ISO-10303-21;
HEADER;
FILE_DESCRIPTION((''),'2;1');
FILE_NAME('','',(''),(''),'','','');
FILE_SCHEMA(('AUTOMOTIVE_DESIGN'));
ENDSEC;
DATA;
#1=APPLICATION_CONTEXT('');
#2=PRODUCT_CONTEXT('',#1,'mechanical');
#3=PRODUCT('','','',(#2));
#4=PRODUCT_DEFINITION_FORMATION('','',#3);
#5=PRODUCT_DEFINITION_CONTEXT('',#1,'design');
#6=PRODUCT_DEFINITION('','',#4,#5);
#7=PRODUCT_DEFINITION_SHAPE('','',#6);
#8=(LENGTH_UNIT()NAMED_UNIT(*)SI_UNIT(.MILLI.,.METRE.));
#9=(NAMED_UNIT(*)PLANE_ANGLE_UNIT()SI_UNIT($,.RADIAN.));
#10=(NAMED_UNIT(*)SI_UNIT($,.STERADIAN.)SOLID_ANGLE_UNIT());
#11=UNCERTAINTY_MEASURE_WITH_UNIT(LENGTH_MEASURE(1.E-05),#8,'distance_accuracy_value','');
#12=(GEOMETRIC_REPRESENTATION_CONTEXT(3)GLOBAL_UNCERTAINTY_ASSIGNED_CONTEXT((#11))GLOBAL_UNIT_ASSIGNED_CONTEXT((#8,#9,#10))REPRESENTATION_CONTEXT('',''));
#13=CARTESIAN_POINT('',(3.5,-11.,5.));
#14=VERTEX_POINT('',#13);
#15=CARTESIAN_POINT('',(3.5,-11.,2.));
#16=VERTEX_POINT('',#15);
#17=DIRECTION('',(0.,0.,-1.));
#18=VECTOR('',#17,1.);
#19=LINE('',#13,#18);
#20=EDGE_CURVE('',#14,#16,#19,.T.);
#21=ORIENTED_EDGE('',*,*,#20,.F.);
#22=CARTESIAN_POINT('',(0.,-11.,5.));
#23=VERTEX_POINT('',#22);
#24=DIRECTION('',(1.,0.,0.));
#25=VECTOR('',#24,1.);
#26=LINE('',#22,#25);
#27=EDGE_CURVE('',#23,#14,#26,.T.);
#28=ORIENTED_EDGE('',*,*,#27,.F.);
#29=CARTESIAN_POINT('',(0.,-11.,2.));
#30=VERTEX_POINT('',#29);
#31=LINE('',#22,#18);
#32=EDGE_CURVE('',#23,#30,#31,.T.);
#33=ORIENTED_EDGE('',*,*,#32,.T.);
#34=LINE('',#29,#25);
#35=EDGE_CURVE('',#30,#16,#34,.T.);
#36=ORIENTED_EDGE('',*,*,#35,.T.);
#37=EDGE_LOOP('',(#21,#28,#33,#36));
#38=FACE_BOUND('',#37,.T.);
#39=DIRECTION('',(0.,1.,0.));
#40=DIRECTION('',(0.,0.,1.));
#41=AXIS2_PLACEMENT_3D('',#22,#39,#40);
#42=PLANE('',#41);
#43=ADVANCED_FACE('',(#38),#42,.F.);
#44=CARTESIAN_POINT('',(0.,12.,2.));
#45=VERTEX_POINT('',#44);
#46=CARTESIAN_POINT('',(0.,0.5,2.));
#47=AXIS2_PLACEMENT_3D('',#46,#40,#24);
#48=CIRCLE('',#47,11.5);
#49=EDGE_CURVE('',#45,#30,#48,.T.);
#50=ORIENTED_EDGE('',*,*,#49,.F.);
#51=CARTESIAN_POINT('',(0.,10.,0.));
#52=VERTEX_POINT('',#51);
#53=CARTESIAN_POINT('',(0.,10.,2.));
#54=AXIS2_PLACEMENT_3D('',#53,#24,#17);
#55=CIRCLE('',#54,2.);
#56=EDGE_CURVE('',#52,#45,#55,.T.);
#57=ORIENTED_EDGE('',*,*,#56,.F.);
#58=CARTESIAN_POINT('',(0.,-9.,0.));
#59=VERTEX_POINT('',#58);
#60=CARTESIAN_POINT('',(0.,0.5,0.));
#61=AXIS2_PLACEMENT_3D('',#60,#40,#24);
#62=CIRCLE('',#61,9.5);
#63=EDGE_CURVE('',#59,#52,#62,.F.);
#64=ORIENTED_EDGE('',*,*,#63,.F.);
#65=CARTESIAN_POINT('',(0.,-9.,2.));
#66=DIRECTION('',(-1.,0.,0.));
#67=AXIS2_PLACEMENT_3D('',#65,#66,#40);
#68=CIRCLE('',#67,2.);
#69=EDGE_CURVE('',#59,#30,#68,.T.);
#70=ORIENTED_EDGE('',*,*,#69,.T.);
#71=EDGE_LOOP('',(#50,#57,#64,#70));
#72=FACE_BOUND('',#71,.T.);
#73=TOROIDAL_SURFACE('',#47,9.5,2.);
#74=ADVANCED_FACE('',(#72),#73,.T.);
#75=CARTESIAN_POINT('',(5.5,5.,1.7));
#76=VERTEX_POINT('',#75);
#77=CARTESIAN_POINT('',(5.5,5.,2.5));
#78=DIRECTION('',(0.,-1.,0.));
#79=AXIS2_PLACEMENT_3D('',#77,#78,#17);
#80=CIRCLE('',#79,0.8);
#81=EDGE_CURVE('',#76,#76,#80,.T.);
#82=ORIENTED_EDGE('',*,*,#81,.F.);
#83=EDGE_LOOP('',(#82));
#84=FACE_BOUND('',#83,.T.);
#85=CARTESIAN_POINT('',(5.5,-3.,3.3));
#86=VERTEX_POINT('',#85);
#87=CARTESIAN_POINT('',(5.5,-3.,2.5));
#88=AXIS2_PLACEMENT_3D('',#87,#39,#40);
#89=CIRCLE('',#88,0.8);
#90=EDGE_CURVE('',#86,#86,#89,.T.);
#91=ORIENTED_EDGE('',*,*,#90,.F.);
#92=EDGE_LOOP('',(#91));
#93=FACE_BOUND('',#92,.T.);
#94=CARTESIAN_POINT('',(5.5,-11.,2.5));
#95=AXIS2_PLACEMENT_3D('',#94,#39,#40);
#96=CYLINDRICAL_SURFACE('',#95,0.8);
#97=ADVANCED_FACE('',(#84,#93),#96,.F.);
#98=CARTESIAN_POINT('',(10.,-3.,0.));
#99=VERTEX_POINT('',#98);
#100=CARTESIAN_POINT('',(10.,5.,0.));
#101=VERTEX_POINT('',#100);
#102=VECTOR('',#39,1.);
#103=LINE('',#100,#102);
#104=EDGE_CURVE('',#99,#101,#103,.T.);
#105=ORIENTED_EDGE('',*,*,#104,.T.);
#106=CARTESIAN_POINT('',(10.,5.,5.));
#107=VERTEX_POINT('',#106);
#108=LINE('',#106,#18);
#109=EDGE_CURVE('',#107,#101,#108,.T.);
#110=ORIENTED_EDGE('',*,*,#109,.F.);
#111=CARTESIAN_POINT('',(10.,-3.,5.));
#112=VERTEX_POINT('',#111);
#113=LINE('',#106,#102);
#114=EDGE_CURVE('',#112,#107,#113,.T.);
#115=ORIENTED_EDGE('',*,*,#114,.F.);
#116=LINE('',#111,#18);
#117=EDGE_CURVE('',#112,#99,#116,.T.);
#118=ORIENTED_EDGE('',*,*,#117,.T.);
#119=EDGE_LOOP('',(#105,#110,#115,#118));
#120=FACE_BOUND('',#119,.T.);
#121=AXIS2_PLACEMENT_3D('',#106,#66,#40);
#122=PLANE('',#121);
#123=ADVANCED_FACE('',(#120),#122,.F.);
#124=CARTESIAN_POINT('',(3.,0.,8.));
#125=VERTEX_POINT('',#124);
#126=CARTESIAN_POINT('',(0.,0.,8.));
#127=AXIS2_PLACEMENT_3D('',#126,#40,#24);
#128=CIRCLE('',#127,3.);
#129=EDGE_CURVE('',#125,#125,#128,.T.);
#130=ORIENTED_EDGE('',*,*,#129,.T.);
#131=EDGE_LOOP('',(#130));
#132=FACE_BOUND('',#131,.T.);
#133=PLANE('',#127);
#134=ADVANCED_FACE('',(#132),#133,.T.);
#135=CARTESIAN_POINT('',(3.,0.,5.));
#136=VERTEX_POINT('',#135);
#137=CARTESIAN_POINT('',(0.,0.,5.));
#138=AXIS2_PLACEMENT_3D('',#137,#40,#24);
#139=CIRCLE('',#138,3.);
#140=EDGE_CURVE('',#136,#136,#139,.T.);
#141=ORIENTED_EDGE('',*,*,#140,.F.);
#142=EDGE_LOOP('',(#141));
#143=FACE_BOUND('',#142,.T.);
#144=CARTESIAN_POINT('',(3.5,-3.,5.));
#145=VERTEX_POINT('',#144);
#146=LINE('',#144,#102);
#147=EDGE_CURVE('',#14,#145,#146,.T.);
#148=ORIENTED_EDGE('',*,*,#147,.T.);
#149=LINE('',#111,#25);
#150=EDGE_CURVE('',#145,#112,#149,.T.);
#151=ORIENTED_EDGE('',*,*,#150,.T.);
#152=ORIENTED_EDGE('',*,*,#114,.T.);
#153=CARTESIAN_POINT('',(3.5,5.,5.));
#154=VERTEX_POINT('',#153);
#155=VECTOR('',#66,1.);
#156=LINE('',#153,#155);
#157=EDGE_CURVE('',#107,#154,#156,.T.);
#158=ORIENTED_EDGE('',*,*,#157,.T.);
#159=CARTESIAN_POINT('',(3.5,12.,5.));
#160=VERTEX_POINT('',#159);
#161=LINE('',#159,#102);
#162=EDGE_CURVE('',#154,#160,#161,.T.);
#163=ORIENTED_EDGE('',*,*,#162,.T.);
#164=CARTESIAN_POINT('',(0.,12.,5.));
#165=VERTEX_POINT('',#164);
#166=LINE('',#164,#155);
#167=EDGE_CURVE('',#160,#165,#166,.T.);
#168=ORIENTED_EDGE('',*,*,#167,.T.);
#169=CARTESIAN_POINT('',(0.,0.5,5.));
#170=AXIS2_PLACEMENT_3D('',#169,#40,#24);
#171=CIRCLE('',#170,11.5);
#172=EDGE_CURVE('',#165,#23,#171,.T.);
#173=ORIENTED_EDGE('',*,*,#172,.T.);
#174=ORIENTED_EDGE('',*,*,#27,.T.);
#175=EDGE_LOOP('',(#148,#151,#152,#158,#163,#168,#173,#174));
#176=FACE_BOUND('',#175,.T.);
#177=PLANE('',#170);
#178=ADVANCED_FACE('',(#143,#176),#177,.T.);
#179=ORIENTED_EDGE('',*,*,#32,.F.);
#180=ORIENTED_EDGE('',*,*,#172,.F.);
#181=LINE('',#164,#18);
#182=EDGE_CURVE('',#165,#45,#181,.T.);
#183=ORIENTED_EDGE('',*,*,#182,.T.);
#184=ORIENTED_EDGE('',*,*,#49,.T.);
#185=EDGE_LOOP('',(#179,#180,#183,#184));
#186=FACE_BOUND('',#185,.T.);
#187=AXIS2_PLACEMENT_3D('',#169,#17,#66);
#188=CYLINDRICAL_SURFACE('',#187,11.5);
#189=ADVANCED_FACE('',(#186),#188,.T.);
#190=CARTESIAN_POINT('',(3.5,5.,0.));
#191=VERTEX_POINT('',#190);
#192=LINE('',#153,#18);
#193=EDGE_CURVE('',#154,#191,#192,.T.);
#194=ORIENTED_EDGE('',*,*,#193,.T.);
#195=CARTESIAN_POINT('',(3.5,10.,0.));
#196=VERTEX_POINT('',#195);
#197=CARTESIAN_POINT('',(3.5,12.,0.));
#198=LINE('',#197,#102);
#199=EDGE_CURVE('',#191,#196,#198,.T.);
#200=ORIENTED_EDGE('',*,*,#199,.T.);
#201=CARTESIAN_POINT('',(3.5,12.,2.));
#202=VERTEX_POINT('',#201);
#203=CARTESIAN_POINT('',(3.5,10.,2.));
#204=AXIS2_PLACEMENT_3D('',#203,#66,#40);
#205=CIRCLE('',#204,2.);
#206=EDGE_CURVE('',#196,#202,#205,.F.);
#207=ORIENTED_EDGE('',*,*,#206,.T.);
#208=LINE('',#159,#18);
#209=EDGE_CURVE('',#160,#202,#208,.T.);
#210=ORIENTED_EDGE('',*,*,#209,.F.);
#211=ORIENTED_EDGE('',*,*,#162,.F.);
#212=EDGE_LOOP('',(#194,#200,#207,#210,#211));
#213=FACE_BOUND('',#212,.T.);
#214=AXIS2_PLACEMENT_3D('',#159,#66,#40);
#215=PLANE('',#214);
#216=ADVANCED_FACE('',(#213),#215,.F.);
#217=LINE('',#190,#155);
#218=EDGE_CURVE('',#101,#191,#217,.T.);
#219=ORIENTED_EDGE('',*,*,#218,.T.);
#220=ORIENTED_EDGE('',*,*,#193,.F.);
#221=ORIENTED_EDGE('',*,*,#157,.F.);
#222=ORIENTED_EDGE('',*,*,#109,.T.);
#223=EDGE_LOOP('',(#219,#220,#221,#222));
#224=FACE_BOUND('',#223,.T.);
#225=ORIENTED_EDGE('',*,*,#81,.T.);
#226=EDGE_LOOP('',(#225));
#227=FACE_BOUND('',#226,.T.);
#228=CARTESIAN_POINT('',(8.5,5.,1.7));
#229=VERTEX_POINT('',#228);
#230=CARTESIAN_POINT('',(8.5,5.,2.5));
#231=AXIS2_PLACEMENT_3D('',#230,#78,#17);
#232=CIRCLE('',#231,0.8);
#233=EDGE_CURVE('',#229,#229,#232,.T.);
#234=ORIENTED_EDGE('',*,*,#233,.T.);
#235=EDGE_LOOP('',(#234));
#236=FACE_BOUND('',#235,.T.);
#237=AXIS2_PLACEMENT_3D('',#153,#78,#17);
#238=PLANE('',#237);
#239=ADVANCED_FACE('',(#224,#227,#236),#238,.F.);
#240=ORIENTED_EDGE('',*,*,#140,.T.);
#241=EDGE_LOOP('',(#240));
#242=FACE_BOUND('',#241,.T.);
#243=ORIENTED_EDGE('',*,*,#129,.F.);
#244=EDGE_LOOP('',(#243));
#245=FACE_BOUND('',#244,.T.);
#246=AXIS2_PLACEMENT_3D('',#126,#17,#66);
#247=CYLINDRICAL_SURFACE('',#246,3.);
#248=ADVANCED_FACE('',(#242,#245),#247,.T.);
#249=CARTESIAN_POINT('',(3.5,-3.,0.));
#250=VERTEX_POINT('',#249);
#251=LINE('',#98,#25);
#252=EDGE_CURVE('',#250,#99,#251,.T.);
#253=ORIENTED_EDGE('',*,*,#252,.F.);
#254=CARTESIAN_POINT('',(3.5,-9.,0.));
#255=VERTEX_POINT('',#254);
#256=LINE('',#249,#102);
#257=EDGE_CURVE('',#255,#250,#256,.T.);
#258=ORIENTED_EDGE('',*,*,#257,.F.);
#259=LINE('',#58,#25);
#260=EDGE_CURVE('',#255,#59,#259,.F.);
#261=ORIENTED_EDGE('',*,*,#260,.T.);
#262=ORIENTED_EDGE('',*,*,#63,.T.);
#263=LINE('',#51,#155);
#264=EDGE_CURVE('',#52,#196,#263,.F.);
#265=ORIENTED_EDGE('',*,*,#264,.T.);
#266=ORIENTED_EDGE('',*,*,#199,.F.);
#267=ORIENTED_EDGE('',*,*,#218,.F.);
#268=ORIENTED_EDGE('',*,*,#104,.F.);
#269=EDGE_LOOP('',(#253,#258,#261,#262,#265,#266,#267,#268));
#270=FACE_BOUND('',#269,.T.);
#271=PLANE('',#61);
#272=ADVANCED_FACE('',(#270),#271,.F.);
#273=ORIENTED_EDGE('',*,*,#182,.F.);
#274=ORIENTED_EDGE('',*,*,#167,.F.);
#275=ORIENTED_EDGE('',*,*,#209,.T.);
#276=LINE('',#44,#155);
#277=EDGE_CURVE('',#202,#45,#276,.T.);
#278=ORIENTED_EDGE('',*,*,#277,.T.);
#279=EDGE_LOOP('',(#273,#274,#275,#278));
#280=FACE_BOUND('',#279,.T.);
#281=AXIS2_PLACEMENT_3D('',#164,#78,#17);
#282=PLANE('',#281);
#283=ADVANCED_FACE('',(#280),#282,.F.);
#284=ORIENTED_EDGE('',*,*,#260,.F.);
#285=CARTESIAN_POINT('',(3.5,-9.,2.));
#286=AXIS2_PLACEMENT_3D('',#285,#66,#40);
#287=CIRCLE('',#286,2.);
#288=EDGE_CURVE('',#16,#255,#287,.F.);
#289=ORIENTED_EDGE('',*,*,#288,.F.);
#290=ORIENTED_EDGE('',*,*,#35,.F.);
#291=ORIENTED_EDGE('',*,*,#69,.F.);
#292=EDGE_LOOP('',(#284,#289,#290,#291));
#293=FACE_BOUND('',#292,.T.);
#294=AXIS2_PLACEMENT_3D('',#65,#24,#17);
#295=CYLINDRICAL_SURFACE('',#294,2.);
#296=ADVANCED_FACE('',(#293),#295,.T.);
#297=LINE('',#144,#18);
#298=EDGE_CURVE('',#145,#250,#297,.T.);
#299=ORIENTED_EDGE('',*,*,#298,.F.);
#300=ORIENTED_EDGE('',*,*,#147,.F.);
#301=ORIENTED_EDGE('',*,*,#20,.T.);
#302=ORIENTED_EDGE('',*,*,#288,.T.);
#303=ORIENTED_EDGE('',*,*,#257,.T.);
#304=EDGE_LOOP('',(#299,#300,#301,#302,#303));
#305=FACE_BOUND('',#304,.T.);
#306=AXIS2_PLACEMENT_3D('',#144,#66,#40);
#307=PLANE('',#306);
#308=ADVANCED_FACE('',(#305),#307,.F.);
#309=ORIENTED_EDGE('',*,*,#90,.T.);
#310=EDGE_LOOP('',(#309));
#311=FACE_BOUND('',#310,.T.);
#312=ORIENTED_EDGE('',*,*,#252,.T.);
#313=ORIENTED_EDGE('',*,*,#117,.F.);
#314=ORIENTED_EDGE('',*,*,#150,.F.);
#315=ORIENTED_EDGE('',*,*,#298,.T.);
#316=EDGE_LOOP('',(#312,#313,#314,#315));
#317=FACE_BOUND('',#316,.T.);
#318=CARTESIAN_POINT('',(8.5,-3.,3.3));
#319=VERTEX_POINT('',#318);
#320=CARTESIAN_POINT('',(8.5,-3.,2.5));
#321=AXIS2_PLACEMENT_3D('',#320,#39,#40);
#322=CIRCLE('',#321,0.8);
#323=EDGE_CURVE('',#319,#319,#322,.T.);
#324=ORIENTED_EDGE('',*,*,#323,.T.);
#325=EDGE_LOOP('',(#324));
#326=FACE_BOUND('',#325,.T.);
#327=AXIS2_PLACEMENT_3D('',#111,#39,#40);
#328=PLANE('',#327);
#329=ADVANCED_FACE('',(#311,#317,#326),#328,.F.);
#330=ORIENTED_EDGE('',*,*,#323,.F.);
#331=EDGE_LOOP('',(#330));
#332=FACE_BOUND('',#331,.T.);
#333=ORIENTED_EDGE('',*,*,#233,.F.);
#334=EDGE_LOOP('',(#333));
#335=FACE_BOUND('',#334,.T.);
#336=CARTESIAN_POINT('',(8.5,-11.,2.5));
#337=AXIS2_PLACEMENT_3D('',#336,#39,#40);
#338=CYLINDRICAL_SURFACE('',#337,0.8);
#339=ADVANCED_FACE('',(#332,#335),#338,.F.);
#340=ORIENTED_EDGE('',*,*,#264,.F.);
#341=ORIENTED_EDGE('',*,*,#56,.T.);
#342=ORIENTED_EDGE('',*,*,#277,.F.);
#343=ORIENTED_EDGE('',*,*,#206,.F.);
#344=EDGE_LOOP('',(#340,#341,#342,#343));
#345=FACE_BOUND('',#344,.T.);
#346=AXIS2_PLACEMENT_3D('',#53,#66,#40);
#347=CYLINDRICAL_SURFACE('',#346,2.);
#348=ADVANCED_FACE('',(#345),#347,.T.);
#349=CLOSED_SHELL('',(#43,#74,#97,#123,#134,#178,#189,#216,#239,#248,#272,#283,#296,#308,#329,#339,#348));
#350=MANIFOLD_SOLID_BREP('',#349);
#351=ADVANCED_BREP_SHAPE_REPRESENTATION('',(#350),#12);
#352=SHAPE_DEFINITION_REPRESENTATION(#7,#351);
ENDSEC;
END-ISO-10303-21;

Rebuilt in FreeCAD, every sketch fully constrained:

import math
import FreeCAD as App
import Part
import Sketcher
Q = App.Units.Quantity


def edges_at(feature, points):
    """Names of the edges that pass closest to the given points."""
    edges = feature.Shape.Edges
    near = lambda p: min(range(len(edges)), key=lambda i: edges[i].distToShape(Part.Vertex(*p))[0])
    return sorted({f"Edge{near(p) + 1}" for p in points})

doc = App.newDocument("Part")
body = doc.addObject("PartDesign::Body", "Body")

sketch1 = body.newObject("Sketcher::SketchObject", "Sketch")
sketch1.AttachmentSupport = (doc.getObject("XY_Plane"), [""])
sketch1.MapMode = "FlatFace"
sketch1.addGeometry([
    Part.LineSegment(App.Vector(3.5, 5, 0), App.Vector(3.5, 12, 0)),
    Part.LineSegment(App.Vector(3.5, 12, 0), App.Vector(0, 12, 0)),
    Part.ArcOfCircle(Part.Circle(App.Vector(0, 0.5, 0), App.Vector(0, 0, 1), 11.5), math.radians(90), math.radians(270)),
    Part.LineSegment(App.Vector(0, -11, 0), App.Vector(3.5, -11, 0)),
    Part.LineSegment(App.Vector(3.5, -11, 0), App.Vector(3.5, -3, 0)),
    Part.LineSegment(App.Vector(3.5, -3, 0), App.Vector(10, -3, 0)),
    Part.LineSegment(App.Vector(10, -3, 0), App.Vector(10, 5, 0)),
    Part.LineSegment(App.Vector(10, 5, 0), App.Vector(3.5, 5, 0)),
], False)
sketch1.addConstraint([
    Sketcher.Constraint("Coincident", 0, 2, 1, 1),
    Sketcher.Constraint("Tangent", 1, 2, 2, 1),
    Sketcher.Constraint("Tangent", 2, 2, 3, 1),
    Sketcher.Constraint("Coincident", 3, 2, 4, 1),
    Sketcher.Constraint("Coincident", 4, 2, 5, 1),
    Sketcher.Constraint("Coincident", 5, 2, 6, 1),
    Sketcher.Constraint("Coincident", 6, 2, 7, 1),
    Sketcher.Constraint("Coincident", 7, 2, 0, 1),
    Sketcher.Constraint("Vertical", 0),
    Sketcher.Constraint("Horizontal", 1),
    Sketcher.Constraint("Horizontal", 3),
    Sketcher.Constraint("Vertical", 4),
    Sketcher.Constraint("Horizontal", 5),
    Sketcher.Constraint("Vertical", 6),
    Sketcher.Constraint("Horizontal", 7),
    Sketcher.Constraint("PointOnObject", 2, 3, -2),
    Sketcher.Constraint("Vertical", 0, 2, 3, 2),
    Sketcher.Constraint("Equal", 4, 6),
    Sketcher.Constraint("Radius", 2, Q("11.5 mm")),
    Sketcher.Constraint("DistanceY", 0, 1, 0, 2, Q("7 mm")),
    Sketcher.Constraint("DistanceX", 1, 2, 1, 1, Q("3.5 mm")),
    Sketcher.Constraint("DistanceX", 5, 1, 5, 2, Q("6.5 mm")),
    Sketcher.Constraint("DistanceY", -1, 1, 0, 2, Q("12 mm")),
])
pad1 = body.newObject("PartDesign::Pad", "Pad")
pad1.Profile = sketch1
pad1.Length = 5

sketch2 = body.newObject("Sketcher::SketchObject", "Sketch001")
sketch2.AttachmentSupport = (doc.getObject("XZ_Plane"), [""])
sketch2.MapMode = "FlatFace"
sketch2.AttachmentOffset = App.Placement(App.Vector(0, 0, -11), App.Rotation())
sketch2.addGeometry([
    Part.Circle(App.Vector(8.5, 2.5, 0), App.Vector(0, 0, 1), 0.8),
    Part.Circle(App.Vector(5.5, 2.5, 0), App.Vector(0, 0, 1), 0.8),
], False)
sketch2.addConstraint([
    Sketcher.Constraint("Equal", 0, 1),
    Sketcher.Constraint("Horizontal", 0, 3, 1, 3),
    Sketcher.Constraint("Diameter", 0, Q("1.6 mm")),
    Sketcher.Constraint("DistanceX", 1, 3, 0, 3, Q("3 mm")),
    Sketcher.Constraint("DistanceX", -1, 1, 0, 3, Q("8.5 mm")),
    Sketcher.Constraint("DistanceY", -1, 1, 0, 3, Q("2.5 mm")),
])
pocket1 = body.newObject("PartDesign::Pocket", "Pocket")
pocket1.Profile = sketch2
pocket1.Type = "ThroughAll"
pocket1.Reversed = True

sketch3 = body.newObject("Sketcher::SketchObject", "Sketch002")
sketch3.AttachmentSupport = (doc.getObject("XY_Plane"), [""])
sketch3.MapMode = "FlatFace"
sketch3.AttachmentOffset = App.Placement(App.Vector(0, 0, 5), App.Rotation())
sketch3.addGeometry(Part.Circle(App.Vector(0, 0, 0), App.Vector(0, 0, 1), 3), False)
sketch3.addConstraint([
    Sketcher.Constraint("Coincident", 0, 3, -1, 1),
    Sketcher.Constraint("Diameter", 0, Q("6 mm")),
])
pad2 = body.newObject("PartDesign::Pad", "Pad001")
pad2.Profile = sketch3
pad2.Length = 3
doc.recompute()

fillet = body.newObject("PartDesign::Fillet", "Fillet")
fillet.Base = (pad2, edges_at(pad2, [(1.75, -11, 0), (-11.5, 0.5, 0), (1.75, 12, 0)]))
fillet.Radius = 2

doc.recompute()
